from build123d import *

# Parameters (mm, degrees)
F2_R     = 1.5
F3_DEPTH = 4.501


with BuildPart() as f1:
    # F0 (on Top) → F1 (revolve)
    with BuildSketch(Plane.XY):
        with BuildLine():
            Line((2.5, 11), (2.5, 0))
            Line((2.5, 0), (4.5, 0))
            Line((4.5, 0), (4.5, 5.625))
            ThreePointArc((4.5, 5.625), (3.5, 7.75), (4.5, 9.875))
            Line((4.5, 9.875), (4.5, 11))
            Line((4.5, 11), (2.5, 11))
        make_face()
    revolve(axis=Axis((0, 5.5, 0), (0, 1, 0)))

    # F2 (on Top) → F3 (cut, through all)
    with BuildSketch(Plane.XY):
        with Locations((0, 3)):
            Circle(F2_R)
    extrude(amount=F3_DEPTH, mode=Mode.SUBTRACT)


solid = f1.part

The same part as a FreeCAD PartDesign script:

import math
import FreeCAD as App
import Part
import Sketcher
from FreeCAD import Vector
Q = App.Units.Quantity

doc = App.newDocument("Part")
body = doc.addObject("PartDesign::Body", "Body")

# Sketch on XY plane
sketch1 = doc.addObject("Sketcher::SketchObject", "Sketch")
body.addObject(sketch1)
sketch1.AttachmentSupport = (doc.XY_Plane, [""])
sketch1.MapMode = "FlatFace"
sketch1.addGeometry(Part.LineSegment(Vector(2.5, 11, 0), Vector(2.5, 0, 0)), False)
sketch1.addGeometry(Part.LineSegment(Vector(2.5, 0, 0), Vector(4.5, 0, 0)), False)
sketch1.addGeometry(Part.LineSegment(Vector(4.5, 0, 0), Vector(4.5, 5.6, 0)), False)
sketch1.addGeometry(Part.ArcOfCircle(Part.Circle(Vector(6.3, 7.8, 0), Vector(0, 0, 1), 2.8), math.radians(130), math.radians(230)), False)
sketch1.addGeometry(Part.LineSegment(Vector(4.5, 9.9, 0), Vector(4.5, 11, 0)), False)
sketch1.addGeometry(Part.LineSegment(Vector(4.5, 11, 0), Vector(2.5, 11, 0)), False)
sketch1.addConstraint(Sketcher.Constraint("Coincident", 0, 2, 1, 1))
sketch1.addConstraint(Sketcher.Constraint("Coincident", 1, 2, 2, 1))
sketch1.addConstraint(Sketcher.Constraint("Coincident", 2, 2, 3, 2))
sketch1.addConstraint(Sketcher.Constraint("Coincident", 3, 1, 4, 1))
sketch1.addConstraint(Sketcher.Constraint("Coincident", 4, 2, 5, 1))
sketch1.addConstraint(Sketcher.Constraint("Coincident", 5, 2, 0, 1))
sketch1.addConstraint(Sketcher.Constraint("Vertical", 0))
sketch1.addConstraint(Sketcher.Constraint("Horizontal", 1))
sketch1.addConstraint(Sketcher.Constraint("Vertical", 2))
sketch1.addConstraint(Sketcher.Constraint("Vertical", 4))
sketch1.addConstraint(Sketcher.Constraint("Horizontal", 5))
sketch1.addConstraint(Sketcher.Constraint("PointOnObject", 0, 2, -1))
sketch1.addConstraint(Sketcher.Constraint("Vertical", 2, 2, 3, 1))
sketch1.addConstraint(Sketcher.Constraint("DistanceX", 1, 1, 1, 2, Q("2 mm")))
sketch1.addConstraint(Sketcher.Constraint("DistanceY", 0, 2, 0, 1, Q("11 mm")))
sketch1.addConstraint(Sketcher.Constraint("DistanceX", -1, 1, 0, 2, Q("2.5 mm")))
sketch1.addConstraint(Sketcher.Constraint("DistanceY", 2, 1, 2, 2, Q("5.625 mm")))
sketch1.addConstraint(Sketcher.Constraint("DistanceY", 4, 1, 4, 2, Q("1.125 mm")))
sketch1.addConstraint(Sketcher.Constraint("Radius", 3, Q("2.757812 mm")))
revolution = doc.addObject("PartDesign::Revolution", "Revolution")
body.addObject(revolution)
revolution.Profile = sketch1
revolution.ReferenceAxis = (sketch1, ["V_Axis"])
revolution.Angle = 360

# Sketch on XY plane
sketch2 = doc.addObject("Sketcher::SketchObject", "Sketch001")
body.addObject(sketch2)
sketch2.AttachmentSupport = (doc.XY_Plane, [""])
sketch2.MapMode = "FlatFace"
sketch2.addGeometry(Part.Circle(Vector(0, 3, 0), Vector(0, 0, 1), 1.5), False)
sketch2.addConstraint(Sketcher.Constraint("PointOnObject", 0, 3, -2))
sketch2.addConstraint(Sketcher.Constraint("Diameter", 0, Q("3 mm")))
sketch2.addConstraint(Sketcher.Constraint("DistanceY", -1, 1, 0, 3, Q("3 mm")))
pocket1 = doc.addObject("PartDesign::Pocket", "Pocket")
body.addObject(pocket1)
pocket1.Profile = sketch2
pocket1.Type = "ThroughAll"
pocket1.Reversed = True

doc.recompute()
